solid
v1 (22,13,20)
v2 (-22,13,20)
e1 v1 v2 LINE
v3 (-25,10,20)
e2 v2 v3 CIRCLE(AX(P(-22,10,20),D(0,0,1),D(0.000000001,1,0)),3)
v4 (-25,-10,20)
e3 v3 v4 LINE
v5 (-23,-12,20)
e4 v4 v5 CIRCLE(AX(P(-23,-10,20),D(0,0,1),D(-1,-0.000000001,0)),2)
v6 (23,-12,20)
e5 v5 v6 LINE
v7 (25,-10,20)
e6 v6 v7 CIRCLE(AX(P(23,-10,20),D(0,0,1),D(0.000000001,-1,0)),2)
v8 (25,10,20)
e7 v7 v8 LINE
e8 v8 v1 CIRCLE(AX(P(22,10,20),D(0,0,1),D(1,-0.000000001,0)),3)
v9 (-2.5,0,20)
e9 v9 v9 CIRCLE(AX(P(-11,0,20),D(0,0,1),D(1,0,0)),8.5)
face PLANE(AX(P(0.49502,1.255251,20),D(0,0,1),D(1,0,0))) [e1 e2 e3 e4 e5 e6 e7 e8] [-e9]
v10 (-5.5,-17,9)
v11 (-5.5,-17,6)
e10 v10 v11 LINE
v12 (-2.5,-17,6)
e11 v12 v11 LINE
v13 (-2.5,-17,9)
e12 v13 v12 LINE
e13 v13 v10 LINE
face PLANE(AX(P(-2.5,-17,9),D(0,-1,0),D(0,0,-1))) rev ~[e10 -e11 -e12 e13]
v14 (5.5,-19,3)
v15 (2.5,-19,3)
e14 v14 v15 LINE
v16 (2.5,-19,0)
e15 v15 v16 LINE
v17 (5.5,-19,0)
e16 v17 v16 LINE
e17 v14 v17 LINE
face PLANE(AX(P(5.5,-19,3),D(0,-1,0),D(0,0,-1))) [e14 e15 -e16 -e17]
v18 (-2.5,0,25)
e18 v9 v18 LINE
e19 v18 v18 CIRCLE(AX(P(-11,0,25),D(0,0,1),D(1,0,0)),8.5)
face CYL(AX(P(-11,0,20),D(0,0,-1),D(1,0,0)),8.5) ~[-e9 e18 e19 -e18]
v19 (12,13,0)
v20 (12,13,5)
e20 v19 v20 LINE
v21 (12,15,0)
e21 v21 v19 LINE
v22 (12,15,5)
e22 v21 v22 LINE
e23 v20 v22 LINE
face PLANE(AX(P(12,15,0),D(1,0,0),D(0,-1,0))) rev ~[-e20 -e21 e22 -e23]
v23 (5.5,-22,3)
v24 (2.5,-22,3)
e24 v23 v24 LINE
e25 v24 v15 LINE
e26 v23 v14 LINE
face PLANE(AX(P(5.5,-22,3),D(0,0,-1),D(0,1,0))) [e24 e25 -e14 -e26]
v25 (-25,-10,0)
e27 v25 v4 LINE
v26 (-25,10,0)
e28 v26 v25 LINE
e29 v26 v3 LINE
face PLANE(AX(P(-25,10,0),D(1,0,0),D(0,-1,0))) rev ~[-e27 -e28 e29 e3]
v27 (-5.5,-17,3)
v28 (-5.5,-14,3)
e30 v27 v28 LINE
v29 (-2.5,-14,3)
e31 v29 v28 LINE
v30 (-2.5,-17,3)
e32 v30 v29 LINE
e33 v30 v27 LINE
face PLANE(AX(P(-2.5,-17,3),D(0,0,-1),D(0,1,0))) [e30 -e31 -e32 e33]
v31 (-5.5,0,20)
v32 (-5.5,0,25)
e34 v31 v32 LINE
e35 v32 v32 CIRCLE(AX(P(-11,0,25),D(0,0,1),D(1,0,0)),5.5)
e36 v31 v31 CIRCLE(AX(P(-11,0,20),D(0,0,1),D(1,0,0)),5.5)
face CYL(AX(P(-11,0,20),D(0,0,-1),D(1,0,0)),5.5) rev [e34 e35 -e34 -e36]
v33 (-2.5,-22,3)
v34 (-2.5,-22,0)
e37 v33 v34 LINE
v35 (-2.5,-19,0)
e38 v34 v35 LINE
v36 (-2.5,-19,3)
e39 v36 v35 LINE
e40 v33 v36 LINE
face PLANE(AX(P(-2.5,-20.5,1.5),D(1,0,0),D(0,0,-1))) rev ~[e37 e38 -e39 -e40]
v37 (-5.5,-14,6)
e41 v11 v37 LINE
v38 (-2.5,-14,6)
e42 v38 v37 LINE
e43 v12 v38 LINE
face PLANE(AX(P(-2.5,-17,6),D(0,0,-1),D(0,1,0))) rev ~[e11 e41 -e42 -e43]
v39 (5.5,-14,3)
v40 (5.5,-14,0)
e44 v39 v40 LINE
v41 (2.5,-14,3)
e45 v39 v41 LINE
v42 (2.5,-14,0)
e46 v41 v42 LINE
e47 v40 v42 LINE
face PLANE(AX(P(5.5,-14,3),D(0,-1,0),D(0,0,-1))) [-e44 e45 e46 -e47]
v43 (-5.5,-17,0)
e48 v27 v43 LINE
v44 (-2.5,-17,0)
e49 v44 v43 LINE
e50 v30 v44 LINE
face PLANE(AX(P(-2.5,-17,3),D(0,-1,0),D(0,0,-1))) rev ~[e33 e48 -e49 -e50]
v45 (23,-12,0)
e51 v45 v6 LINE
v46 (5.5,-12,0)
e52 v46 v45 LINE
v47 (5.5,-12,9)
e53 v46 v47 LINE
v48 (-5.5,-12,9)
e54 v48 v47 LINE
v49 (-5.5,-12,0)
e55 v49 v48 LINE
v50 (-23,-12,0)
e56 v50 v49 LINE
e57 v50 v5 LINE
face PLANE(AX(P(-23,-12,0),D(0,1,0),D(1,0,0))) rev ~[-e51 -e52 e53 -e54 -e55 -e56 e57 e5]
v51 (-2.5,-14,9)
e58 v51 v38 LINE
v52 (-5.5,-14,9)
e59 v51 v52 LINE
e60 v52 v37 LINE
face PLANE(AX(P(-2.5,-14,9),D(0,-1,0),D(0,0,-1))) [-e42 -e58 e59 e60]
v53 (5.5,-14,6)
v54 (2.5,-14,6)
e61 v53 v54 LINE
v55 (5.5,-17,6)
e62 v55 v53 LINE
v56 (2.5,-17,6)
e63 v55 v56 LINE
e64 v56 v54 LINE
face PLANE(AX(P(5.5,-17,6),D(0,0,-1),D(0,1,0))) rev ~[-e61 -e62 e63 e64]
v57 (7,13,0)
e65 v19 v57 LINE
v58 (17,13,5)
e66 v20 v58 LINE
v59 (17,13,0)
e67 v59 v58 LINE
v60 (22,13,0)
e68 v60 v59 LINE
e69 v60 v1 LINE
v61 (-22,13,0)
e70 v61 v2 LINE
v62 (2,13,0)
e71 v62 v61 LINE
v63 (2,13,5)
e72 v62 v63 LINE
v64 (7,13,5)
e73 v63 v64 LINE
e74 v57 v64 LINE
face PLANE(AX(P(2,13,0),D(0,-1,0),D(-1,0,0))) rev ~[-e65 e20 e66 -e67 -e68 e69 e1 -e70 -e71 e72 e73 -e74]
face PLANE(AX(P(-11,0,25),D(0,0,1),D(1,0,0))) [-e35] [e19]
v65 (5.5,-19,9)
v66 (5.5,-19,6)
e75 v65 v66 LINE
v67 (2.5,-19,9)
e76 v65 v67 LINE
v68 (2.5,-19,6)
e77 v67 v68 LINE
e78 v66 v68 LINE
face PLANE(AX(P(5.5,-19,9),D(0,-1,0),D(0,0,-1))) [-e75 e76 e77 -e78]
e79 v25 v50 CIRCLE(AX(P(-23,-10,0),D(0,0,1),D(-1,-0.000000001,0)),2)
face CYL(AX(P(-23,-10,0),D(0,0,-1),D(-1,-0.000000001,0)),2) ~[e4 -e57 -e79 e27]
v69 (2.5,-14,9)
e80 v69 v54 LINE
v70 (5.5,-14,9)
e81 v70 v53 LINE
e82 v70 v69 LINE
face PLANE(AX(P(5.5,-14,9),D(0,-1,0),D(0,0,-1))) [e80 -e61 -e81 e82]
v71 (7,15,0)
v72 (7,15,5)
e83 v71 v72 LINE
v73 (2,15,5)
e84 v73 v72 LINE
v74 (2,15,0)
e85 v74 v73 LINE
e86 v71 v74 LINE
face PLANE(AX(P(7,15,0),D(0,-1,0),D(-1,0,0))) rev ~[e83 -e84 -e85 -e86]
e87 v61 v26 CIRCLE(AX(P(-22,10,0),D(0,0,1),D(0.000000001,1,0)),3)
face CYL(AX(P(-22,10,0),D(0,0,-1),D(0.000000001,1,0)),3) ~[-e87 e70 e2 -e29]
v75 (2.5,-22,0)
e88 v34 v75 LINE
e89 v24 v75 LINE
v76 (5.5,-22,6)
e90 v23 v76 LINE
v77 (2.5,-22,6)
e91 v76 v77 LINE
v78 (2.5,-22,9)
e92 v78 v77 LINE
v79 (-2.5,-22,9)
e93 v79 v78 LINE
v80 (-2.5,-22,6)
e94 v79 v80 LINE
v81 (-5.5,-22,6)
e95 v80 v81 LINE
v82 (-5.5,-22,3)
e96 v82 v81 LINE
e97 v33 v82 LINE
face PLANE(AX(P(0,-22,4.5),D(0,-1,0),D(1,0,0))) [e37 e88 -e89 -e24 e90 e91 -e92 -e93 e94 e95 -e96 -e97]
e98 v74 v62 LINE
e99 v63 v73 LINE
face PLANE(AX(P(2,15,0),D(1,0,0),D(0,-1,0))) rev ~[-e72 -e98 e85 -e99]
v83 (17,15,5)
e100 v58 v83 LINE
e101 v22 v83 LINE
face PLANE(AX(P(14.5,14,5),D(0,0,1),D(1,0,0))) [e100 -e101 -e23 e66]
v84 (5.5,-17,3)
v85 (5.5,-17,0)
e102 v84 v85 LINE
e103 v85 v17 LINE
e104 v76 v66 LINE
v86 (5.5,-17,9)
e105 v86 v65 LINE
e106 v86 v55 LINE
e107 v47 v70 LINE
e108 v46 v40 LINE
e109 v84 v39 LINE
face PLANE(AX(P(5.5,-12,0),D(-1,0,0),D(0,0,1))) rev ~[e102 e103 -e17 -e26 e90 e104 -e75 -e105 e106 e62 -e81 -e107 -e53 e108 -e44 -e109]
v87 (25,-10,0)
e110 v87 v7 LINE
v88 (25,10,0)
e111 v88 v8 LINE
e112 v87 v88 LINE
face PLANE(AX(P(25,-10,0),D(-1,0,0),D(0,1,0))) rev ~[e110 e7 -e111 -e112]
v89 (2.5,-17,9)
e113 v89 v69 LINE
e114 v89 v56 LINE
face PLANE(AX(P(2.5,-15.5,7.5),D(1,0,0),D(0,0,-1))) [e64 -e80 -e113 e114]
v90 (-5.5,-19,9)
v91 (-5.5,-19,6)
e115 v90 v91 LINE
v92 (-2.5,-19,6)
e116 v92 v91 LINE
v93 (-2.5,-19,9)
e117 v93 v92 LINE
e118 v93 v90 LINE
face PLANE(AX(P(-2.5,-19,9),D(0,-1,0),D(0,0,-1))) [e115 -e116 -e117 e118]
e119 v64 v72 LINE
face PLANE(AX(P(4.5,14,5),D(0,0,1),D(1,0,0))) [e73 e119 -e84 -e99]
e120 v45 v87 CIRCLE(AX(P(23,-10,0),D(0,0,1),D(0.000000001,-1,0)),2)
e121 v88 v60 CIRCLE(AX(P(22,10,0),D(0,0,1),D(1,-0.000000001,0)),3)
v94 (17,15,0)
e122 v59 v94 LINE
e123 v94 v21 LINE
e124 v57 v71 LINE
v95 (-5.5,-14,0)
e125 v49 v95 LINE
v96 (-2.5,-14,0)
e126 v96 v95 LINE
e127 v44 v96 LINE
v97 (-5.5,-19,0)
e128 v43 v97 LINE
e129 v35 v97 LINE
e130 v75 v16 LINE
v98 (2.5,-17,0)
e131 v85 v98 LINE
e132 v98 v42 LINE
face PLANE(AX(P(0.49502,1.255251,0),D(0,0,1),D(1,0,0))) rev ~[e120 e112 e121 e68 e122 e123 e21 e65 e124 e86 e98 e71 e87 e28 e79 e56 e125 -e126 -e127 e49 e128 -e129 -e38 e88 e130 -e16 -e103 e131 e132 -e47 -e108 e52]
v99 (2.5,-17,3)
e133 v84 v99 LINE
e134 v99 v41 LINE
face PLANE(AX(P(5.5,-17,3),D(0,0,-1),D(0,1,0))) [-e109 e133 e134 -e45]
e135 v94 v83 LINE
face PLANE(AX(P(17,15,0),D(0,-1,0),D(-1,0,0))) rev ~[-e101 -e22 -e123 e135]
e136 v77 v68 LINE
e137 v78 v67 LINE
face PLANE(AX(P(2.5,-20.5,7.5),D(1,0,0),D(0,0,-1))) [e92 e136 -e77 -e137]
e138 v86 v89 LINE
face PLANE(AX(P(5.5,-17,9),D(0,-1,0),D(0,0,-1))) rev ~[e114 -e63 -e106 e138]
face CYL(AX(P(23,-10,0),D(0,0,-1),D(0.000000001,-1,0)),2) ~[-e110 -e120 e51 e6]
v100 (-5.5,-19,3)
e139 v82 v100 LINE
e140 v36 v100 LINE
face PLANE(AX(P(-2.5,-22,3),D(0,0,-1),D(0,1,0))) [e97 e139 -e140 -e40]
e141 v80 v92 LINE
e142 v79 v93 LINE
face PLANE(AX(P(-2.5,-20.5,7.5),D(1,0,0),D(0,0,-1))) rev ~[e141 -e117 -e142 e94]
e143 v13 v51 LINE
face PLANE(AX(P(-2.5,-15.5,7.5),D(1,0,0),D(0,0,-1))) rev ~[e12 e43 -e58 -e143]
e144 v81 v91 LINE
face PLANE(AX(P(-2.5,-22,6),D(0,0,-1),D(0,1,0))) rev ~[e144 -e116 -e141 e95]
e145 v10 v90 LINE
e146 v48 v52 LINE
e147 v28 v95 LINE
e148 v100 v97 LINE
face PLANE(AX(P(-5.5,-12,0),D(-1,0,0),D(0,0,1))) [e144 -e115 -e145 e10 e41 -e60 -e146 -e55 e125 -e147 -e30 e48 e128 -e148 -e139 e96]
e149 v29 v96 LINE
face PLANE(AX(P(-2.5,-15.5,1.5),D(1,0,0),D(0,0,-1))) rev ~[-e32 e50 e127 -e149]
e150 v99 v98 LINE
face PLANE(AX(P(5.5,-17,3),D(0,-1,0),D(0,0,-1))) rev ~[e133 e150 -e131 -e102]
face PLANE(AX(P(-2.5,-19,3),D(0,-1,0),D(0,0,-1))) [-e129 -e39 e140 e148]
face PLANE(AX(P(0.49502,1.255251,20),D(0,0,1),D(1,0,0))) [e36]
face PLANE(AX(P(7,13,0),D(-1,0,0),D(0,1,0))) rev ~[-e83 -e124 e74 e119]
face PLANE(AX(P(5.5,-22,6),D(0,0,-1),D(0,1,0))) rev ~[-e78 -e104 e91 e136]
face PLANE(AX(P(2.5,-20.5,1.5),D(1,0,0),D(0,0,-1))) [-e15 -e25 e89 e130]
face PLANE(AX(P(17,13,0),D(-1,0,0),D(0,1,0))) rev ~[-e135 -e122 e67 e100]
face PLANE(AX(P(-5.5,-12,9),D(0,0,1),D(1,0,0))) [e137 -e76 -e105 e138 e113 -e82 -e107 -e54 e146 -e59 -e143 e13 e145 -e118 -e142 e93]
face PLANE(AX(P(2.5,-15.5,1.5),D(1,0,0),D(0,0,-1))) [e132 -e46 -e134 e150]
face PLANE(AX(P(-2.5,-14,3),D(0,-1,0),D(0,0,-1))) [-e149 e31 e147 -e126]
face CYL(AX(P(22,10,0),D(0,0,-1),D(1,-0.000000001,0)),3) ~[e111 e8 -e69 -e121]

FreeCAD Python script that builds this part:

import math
import FreeCAD as App
import Part
import Sketcher
from FreeCAD import Vector
Q = App.Units.Quantity


def add_polygon(sketch, points):
    """Adds a closed chain of lines whose ends are joined by coincident constraints."""
    first, n = sketch.GeometryCount, len(points)
    for a, b in zip(points, points[1:] + points[:1]):
        sketch.addGeometry(Part.LineSegment(App.Vector(*a, 0), App.Vector(*b, 0)), False)
    for i in range(n):
        sketch.addConstraint(Sketcher.Constraint("Coincident", first + i, 2, first + (i + 1) % n, 1))

doc = App.newDocument("Part")
body = doc.addObject("PartDesign::Body", "Body")

# Sketch on XY plane
sketch1 = body.newObject("Sketcher::SketchObject", "Sketch")
sketch1.AttachmentSupport = (doc.getObject("XY_Plane"), [""])
sketch1.MapMode = "FlatFace"
sketch1.addGeometry([
    Part.LineSegment(Vector(-25, 10, 0), Vector(-25, -10, 0)),  # 0
    Part.ArcOfCircle(Part.Circle(Vector(-23, -10, 0), Vector(0, 0, 1), 2), math.radians(-180), math.radians(-90)),  # 1
    Part.LineSegment(Vector(-23, -12, 0), Vector(23, -12, 0)),  # 2
    Part.ArcOfCircle(Part.Circle(Vector(23, -10, 0), Vector(0, 0, 1), 2), math.radians(-90), math.radians(0)),  # 3
    Part.LineSegment(Vector(25, -10, 0), Vector(25, 10, 0)),  # 4
    Part.ArcOfCircle(Part.Circle(Vector(22, 10, 0), Vector(0, 0, 1), 3), math.radians(0), math.radians(90)),  # 5
    Part.LineSegment(Vector(22, 13, 0), Vector(17, 13, 0)),  # 6
    Part.LineSegment(Vector(17, 13, 0), Vector(17, 15, 0)),  # 7
    Part.LineSegment(Vector(17, 15, 0), Vector(12, 15, 0)),  # 8
    Part.LineSegment(Vector(12, 15, 0), Vector(12, 13, 0)),  # 9
    Part.LineSegment(Vector(12, 13, 0), Vector(7, 13, 0)),  # 10
    Part.LineSegment(Vector(7, 13, 0), Vector(7, 15, 0)),  # 11
    Part.LineSegment(Vector(7, 15, 0), Vector(2, 15, 0)),  # 12
    Part.LineSegment(Vector(2, 15, 0), Vector(2, 13, 0)),  # 13
    Part.LineSegment(Vector(2, 13, 0), Vector(-22, 13, 0)),  # 14
    Part.ArcOfCircle(Part.Circle(Vector(-22, 10, 0), Vector(0, 0, 1), 3), math.radians(90), math.radians(180)),  # 15
], False)
sketch1.addConstraint([
    Sketcher.Constraint("Tangent", 0, 2, 1, 1),
    Sketcher.Constraint("Tangent", 1, 2, 2, 1),
    Sketcher.Constraint("Tangent", 2, 2, 3, 1),
    Sketcher.Constraint("Tangent", 3, 2, 4, 1),
    Sketcher.Constraint("Tangent", 4, 2, 5, 1),
    Sketcher.Constraint("Tangent", 5, 2, 6, 1),
    Sketcher.Constraint("Coincident", 6, 2, 7, 1),
    Sketcher.Constraint("Coincident", 7, 2, 8, 1),
    Sketcher.Constraint("Coincident", 8, 2, 9, 1),
    Sketcher.Constraint("Coincident", 9, 2, 10, 1),
    Sketcher.Constraint("Coincident", 10, 2, 11, 1),
    Sketcher.Constraint("Coincident", 11, 2, 12, 1),
    Sketcher.Constraint("Coincident", 12, 2, 13, 1),
    Sketcher.Constraint("Coincident", 13, 2, 14, 1),
    Sketcher.Constraint("Tangent", 14, 2, 15, 1),
    Sketcher.Constraint("Tangent", 15, 2, 0, 1),
    Sketcher.Constraint("Vertical", 0),
    Sketcher.Constraint("Horizontal", 2),
    Sketcher.Constraint("Vertical", 4),
    Sketcher.Constraint("Horizontal", 6),
    Sketcher.Constraint("Vertical", 7),
    Sketcher.Constraint("Horizontal", 8),
    Sketcher.Constraint("Vertical", 9),
    Sketcher.Constraint("Horizontal", 10),
    Sketcher.Constraint("Vertical", 11),
    Sketcher.Constraint("Horizontal", 12),
    Sketcher.Constraint("Vertical", 13),
    Sketcher.Constraint("Horizontal", 14),
    Sketcher.Constraint("Equal", 1, 3),
    Sketcher.Constraint("Equal", 5, 15),
    Sketcher.Constraint("Symmetric", 0, 2, 4, 2, -1, 1),
    Sketcher.Constraint("Horizontal", 5, 3, 15, 3),
    Sketcher.Constraint("Horizontal", 6, 2, 9, 2),
    Sketcher.Constraint("Horizontal", 8, 2, 11, 2),
    Sketcher.Constraint("Equal", 6, 8),
    Sketcher.Constraint("Equal", 8, 10),
    Sketcher.Constraint("Equal", 10, 12),
    Sketcher.Constraint("Radius", 1, Q("2 mm")),
    Sketcher.Constraint("Radius", 5, Q("3 mm")),
    Sketcher.Constraint("DistanceX", 2, 1, 2, 2, Q("46 mm")),
    Sketcher.Constraint("DistanceX", 6, 2, 6, 1, Q("5 mm")),
    Sketcher.Constraint("DistanceY", 0, 2, 0, 1, Q("20 mm")),
    Sketcher.Constraint("DistanceY", 7, 1, 7, 2, Q("2 mm")),
])
pad1 = body.newObject("PartDesign::Pad", "Pad")
pad1.Profile = sketch1
pad1.Length = 20

# Sketch on XY plane
sketch2 = body.newObject("Sketcher::SketchObject", "Sketch001")
sketch2.AttachmentSupport = (doc.getObject("XY_Plane"), [""])
sketch2.MapMode = "FlatFace"
sketch2.AttachmentOffset = App.Placement(Vector(0, 0, 20), App.Rotation())
add_polygon(sketch2, [(2, 15), (2, 13), (7, 13), (7, 15)])  # lines 0-3
add_polygon(sketch2, [(12, 15), (12, 13), (17, 13), (17, 15)])  # lines 4-7
sketch2.addConstraint([
    Sketcher.Constraint("Vertical", 0),
    Sketcher.Constraint("Horizontal", 1),
    Sketcher.Constraint("Vertical", 2),
    Sketcher.Constraint("Horizontal", 3),
    Sketcher.Constraint("Vertical", 4),
    Sketcher.Constraint("Horizontal", 5),
    Sketcher.Constraint("Vertical", 6),
    Sketcher.Constraint("Horizontal", 7),
    Sketcher.Constraint("Horizontal", 1, 2, 4, 2),
    Sketcher.Constraint("Horizontal", 3, 2, 6, 2),
    Sketcher.Constraint("Equal", 3, 5),
    Sketcher.Constraint("DistanceX", 1, 1, 1, 2, Q("5 mm")),
    Sketcher.Constraint("DistanceY", 0, 2, 0, 1, Q("2 mm")),
    Sketcher.Constraint("DistanceX", -1, 1, 0, 2, Q("2 mm")),
    Sketcher.Constraint("DistanceY", -1, 1, 0, 2, Q("13 mm")),
    Sketcher.Constraint("DistanceX", -1, 1, 4, 2, Q("12 mm")),
])
pocket1 = body.newObject("PartDesign::Pocket", "Pocket")
pocket1.Profile = sketch2
pocket1.Length = 15

# Sketch on XY plane
sketch3 = body.newObject("Sketcher::SketchObject", "Sketch002")
sketch3.AttachmentSupport = (doc.getObject("XY_Plane"), [""])
sketch3.MapMode = "FlatFace"
sketch3.AttachmentOffset = App.Placement(Vector(0, 0, 20), App.Rotation())
sketch3.addGeometry([
    Part.Circle(Vector(-11, 0, 0), Vector(0, 0, 1), 8),
    Part.Circle(Vector(-11, 0, 0), Vector(0, 0, 1), 6),
], False)
sketch3.addConstraint([
    Sketcher.Constraint("Coincident", 1, 3, 0, 3),
    Sketcher.Constraint("PointOnObject", 0, 3, -1),
    Sketcher.Constraint("Diameter", 0, Q("17 mm")),
    Sketcher.Constraint("Diameter", 1, Q("11 mm")),
    Sketcher.Constraint("DistanceX", 0, 3, -1, 1, Q("11 mm")),
])
pad2 = body.newObject("PartDesign::Pad", "Pad001")
pad2.Profile = sketch3
pad2.Length = 5

# Sketch on XZ plane
sketch4 = body.newObject("Sketcher::SketchObject", "Sketch003")
sketch4.AttachmentSupport = (doc.getObject("XZ_Plane"), [""])
sketch4.MapMode = "FlatFace"
sketch4.AttachmentOffset = App.Placement(Vector(0, 0, 12), App.Rotation())
add_polygon(sketch4, [(-6, 9), (-6, 0), (6, 0), (6, 9)])  # lines 0-3
sketch4.addConstraint([
    Sketcher.Constraint("Vertical", 0),
    Sketcher.Constraint("Horizontal", 1),
    Sketcher.Constraint("Vertical", 2),
    Sketcher.Constraint("Horizontal", 3),
    Sketcher.Constraint("Symmetric", 0, 2, 1, 2, -1, 1),
    Sketcher.Constraint("DistanceX", 1, 1, 1, 2, Q("11 mm")),
    Sketcher.Constraint("DistanceY", 0, 2, 0, 1, Q("9 mm")),
])
pad3 = body.newObject("PartDesign::Pad", "Pad002")
pad3.Profile = sketch4
pad3.Length = 10

# Sketch on YZ plane
sketch5 = body.newObject("Sketcher::SketchObject", "Sketch004")
sketch5.AttachmentSupport = (doc.getObject("YZ_Plane"), [""])
sketch5.MapMode = "FlatFace"
sketch5.AttachmentOffset = App.Placement(Vector(0, 0, 5.5), App.Rotation())
add_polygon(sketch5, [(-19, 9), (-22, 9), (-22, 6), (-19, 6)])  # lines 0-3
add_polygon(sketch5, [(-19, 3), (-22, 3), (-22, 0), (-19, 0)])  # lines 4-7
add_polygon(sketch5, [(-14, 9), (-17, 9), (-17, 6), (-14, 6)])  # lines 8-11
add_polygon(sketch5, [(-14, 3), (-17, 3), (-17, 0), (-14, 0)])  # lines 12-15
sketch5.addConstraint([
    Sketcher.Constraint("Horizontal", 0),
    Sketcher.Constraint("Vertical", 1),
    Sketcher.Constraint("Horizontal", 2),
    Sketcher.Constraint("Vertical", 3),
    Sketcher.Constraint("Horizontal", 4),
    Sketcher.Constraint("Vertical", 5),
    Sketcher.Constraint("Horizontal", 6),
    Sketcher.Constraint("Vertical", 7),
    Sketcher.Constraint("Horizontal", 8),
    Sketcher.Constraint("Vertical", 9),
    Sketcher.Constraint("Horizontal", 10),
    Sketcher.Constraint("Vertical", 11),
    Sketcher.Constraint("Horizontal", 12),
    Sketcher.Constraint("Vertical", 13),
    Sketcher.Constraint("Horizontal", 14),
    Sketcher.Constraint("Vertical", 15),
    Sketcher.Constraint("PointOnObject", 5, 2, -1),
    Sketcher.Constraint("PointOnObject", 13, 2, -1),
    Sketcher.Constraint("Horizontal", 3, 2, 8, 2),
    Sketcher.Constraint("Horizontal", 2, 2, 9, 2),
    Sketcher.Constraint("Horizontal", 7, 2, 12, 2),
    Sketcher.Constraint("Vertical", 1, 2, 4, 2),
    Sketcher.Constraint("Vertical", 3, 2, 6, 2),
    Sketcher.Constraint("Vertical", 9, 2, 12, 2),
    Sketcher.Constraint("Vertical", 11, 2, 14, 2),
    Sketcher.Constraint("Equal", 6, 8),
    Sketcher.Constraint("Equal", 14, 1),
    Sketcher.Constraint("Equal", 3, 5),
    Sketcher.Constraint("DistanceX", 0, 2, 0, 1, Q("3 mm")),
    Sketcher.Constraint("DistanceX", 0, 2, -1, 1, Q("22 mm")),
    Sketcher.Constraint("DistanceY", -1, 1, 0, 2, Q("9 mm")),
    Sketcher.Constraint("DistanceX", 8, 2, -1, 1, Q("17 mm")),
])
pocket2 = body.newObject("PartDesign::Pocket", "Pocket001")
pocket2.Profile = sketch5
pocket2.Length = 3

# Sketch on YZ plane
sketch6 = body.newObject("Sketcher::SketchObject", "Sketch005")
sketch6.AttachmentSupport = (doc.getObject("YZ_Plane"), [""])
sketch6.MapMode = "FlatFace"
sketch6.AttachmentOffset = App.Placement(Vector(0, 0, -2.5), App.Rotation())
add_polygon(sketch6, [(-19, 9), (-22, 9), (-22, 6), (-19, 6)])  # lines 0-3
add_polygon(sketch6, [(-19, 3), (-22, 3), (-22, 0), (-19, 0)])  # lines 4-7
add_polygon(sketch6, [(-14, 9), (-17, 9), (-17, 6), (-14, 6)])  # lines 8-11
add_polygon(sketch6, [(-14, 3), (-17, 3), (-17, 0), (-14, 0)])  # lines 12-15
sketch6.addConstraint([
    Sketcher.Constraint("Horizontal", 0),
    Sketcher.Constraint("Vertical", 1),
    Sketcher.Constraint("Horizontal", 2),
    Sketcher.Constraint("Vertical", 3),
    Sketcher.Constraint("Horizontal", 4),
    Sketcher.Constraint("Vertical", 5),
    Sketcher.Constraint("Horizontal", 6),
    Sketcher.Constraint("Vertical", 7),
    Sketcher.Constraint("Horizontal", 8),
    Sketcher.Constraint("Vertical", 9),
    Sketcher.Constraint("Horizontal", 10),
    Sketcher.Constraint("Vertical", 11),
    Sketcher.Constraint("Horizontal", 12),
    Sketcher.Constraint("Vertical", 13),
    Sketcher.Constraint("Horizontal", 14),
    Sketcher.Constraint("Vertical", 15),
    Sketcher.Constraint("PointOnObject", 5, 2, -1),
    Sketcher.Constraint("PointOnObject", 13, 2, -1),
    Sketcher.Constraint("Horizontal", 3, 2, 8, 2),
    Sketcher.Constraint("Horizontal", 2, 2, 9, 2),
    Sketcher.Constraint("Horizontal", 7, 2, 12, 2),
    Sketcher.Constraint("Vertical", 1, 2, 4, 2),
    Sketcher.Constraint("Vertical", 3, 2, 6, 2),
    Sketcher.Constraint("Vertical", 9, 2, 12, 2),
    Sketcher.Constraint("Vertical", 11, 2, 14, 2),
    Sketcher.Constraint("Equal", 6, 8),
    Sketcher.Constraint("Equal", 14, 1),
    Sketcher.Constraint("Equal", 3, 5),
    Sketcher.Constraint("DistanceX", 0, 2, 0, 1, Q("3 mm")),
    Sketcher.Constraint("DistanceX", 0, 2, -1, 1, Q("22 mm")),
    Sketcher.Constraint("DistanceY", -1, 1, 0, 2, Q("9 mm")),
    Sketcher.Constraint("DistanceX", 8, 2, -1, 1, Q("17 mm")),
])
pocket3 = body.newObject("PartDesign::Pocket", "Pocket002")
pocket3.Profile = sketch6
pocket3.Length = 3

doc.recompute()
